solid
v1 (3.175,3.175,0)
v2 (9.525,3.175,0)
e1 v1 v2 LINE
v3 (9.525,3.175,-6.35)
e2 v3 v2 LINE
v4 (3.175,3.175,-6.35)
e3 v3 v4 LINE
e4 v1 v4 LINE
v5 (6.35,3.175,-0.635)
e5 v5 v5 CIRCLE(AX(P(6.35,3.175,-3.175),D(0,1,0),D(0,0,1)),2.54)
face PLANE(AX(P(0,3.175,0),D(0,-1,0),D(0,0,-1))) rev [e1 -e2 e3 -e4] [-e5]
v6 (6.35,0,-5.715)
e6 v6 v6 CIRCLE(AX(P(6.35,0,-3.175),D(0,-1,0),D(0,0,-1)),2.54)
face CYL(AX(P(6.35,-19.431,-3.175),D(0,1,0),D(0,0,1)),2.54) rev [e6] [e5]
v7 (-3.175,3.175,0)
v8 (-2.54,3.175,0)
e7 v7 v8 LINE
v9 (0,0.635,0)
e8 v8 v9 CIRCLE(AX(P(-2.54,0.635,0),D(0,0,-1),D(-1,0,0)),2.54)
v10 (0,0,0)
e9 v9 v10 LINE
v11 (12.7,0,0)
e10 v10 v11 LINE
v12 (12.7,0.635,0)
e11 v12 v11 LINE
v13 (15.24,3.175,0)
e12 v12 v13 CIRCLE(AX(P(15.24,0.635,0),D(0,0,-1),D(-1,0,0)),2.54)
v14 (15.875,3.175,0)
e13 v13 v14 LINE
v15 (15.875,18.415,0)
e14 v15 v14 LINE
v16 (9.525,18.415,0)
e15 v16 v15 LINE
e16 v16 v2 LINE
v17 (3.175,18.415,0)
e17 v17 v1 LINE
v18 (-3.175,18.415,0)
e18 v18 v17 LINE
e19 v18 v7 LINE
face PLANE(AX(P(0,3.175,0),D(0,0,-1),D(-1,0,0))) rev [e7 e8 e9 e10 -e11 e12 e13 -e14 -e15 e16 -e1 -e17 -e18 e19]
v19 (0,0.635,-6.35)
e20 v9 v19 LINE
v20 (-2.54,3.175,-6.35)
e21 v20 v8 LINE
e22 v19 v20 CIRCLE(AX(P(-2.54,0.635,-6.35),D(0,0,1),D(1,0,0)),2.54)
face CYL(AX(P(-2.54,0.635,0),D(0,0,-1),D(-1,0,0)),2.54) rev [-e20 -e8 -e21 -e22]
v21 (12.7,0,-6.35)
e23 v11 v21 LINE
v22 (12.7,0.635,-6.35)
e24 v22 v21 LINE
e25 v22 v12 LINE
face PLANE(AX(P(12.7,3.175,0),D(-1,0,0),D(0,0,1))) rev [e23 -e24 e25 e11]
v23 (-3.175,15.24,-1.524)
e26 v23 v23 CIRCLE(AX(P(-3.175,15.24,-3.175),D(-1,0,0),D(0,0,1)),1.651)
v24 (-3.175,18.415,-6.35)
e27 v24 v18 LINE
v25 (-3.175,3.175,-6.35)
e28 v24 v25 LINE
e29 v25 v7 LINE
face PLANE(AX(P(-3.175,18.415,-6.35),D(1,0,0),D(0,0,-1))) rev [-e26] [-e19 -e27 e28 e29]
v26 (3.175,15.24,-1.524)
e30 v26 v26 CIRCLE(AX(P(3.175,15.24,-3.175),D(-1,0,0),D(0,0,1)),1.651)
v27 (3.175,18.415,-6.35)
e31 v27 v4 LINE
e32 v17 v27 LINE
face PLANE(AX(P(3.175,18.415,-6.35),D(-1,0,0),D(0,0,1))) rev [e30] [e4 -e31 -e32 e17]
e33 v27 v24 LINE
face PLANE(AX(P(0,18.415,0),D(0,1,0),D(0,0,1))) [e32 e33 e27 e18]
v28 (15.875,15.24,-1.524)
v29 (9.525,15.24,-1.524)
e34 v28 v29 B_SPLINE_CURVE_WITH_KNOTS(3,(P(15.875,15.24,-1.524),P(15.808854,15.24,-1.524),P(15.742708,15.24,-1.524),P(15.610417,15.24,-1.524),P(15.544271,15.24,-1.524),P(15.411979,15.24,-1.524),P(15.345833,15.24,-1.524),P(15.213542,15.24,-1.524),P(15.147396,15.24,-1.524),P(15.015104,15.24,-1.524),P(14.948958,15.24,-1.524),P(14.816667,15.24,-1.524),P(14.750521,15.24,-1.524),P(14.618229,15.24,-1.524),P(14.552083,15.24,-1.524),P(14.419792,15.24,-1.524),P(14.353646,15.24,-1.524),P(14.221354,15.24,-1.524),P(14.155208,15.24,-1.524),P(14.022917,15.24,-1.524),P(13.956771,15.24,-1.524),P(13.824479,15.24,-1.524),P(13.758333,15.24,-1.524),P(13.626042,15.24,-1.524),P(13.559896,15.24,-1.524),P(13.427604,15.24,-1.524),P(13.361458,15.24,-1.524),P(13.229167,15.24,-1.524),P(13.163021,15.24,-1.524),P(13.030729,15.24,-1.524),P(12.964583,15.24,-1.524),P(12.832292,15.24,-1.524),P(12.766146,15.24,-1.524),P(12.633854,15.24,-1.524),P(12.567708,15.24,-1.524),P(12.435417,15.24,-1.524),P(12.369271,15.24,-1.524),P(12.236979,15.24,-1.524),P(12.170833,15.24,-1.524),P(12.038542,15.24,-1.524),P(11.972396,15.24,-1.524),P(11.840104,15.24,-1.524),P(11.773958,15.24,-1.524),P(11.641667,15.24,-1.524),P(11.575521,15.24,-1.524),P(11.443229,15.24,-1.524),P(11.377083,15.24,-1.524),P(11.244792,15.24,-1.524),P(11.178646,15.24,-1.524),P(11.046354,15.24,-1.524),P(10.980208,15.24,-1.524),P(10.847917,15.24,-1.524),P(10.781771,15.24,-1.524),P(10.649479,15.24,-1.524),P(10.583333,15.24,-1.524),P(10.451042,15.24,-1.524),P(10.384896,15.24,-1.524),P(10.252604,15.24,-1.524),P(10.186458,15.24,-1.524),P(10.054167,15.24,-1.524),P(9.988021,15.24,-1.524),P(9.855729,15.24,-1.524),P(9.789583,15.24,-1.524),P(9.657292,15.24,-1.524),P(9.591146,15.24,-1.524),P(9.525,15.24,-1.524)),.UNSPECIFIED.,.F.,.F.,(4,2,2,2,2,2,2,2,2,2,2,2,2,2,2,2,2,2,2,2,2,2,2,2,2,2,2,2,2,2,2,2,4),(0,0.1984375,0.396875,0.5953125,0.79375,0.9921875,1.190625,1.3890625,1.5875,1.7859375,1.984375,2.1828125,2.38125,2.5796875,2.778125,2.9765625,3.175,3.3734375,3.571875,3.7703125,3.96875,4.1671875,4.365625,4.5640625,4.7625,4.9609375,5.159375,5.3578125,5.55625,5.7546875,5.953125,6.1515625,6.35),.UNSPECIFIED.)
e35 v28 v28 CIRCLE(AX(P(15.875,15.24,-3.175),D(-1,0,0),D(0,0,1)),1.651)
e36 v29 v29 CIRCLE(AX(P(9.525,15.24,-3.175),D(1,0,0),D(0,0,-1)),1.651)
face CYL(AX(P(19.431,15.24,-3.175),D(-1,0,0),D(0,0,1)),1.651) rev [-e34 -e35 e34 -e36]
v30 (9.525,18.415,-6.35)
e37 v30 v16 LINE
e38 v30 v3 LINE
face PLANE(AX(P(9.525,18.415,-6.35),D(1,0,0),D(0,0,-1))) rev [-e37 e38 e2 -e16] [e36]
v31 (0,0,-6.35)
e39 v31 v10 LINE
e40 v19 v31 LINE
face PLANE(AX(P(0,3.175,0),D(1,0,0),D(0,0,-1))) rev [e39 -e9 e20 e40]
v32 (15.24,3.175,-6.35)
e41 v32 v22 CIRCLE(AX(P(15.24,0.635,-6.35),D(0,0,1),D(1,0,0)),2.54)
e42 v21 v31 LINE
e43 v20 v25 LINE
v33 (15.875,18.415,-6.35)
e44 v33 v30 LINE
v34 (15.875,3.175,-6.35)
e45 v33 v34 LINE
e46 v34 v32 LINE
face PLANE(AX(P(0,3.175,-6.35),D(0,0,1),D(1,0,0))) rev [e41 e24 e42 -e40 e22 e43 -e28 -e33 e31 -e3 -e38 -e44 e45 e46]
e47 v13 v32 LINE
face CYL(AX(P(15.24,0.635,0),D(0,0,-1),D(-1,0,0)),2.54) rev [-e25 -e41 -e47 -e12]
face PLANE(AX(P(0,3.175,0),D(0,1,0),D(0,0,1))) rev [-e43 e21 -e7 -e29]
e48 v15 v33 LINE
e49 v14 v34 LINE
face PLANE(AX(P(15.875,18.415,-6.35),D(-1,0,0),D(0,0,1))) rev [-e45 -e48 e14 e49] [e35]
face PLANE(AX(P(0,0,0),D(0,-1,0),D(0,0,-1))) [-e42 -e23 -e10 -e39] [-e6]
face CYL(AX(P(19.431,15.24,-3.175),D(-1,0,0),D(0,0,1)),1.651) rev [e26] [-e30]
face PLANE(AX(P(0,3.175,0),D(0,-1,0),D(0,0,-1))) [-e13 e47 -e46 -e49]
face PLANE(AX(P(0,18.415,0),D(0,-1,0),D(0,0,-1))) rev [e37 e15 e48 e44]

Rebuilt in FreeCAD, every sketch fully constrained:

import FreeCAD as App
import Part
import Sketcher

V = App.Vector
Q = App.Units.Quantity


def edges_at(feature, points):
    """Names of the edges that pass closest to the given points."""
    edges = feature.Shape.Edges
    near = lambda p: min(range(len(edges)), key=lambda i: edges[i].distToShape(Part.Vertex(*p))[0])
    return sorted({f"Edge{near(p) + 1}" for p in points})


def add_polygon(sketch, points):
    """Adds a closed chain of lines whose ends are joined by coincident constraints."""
    first, n = sketch.GeometryCount, len(points)
    for a, b in zip(points, points[1:] + points[:1]):
        sketch.addGeometry(Part.LineSegment(App.Vector(*a, 0), App.Vector(*b, 0)), False)
    for i in range(n):
        sketch.addConstraint(Sketcher.Constraint("Coincident", first + i, 2, first + (i + 1) % n, 1))

doc = App.newDocument("Part")
params = doc.addObject("Spreadsheet::Sheet", "Params")
for row, (alias, value) in enumerate([
    ("sketch1_width", "0.5 in"),
    ("sketch1_height", "0.25 in"),
    ("pad1_length", "0.125 in"),
    ("sketch2_width", "0.25 in"),
    ("pad2_length", "0.6 in"),
    ("fillet_radius", "0.1 in"),
    ("sketch3_diameter", "0.13 in"),
    ("pocket1_length", "0.89 in"),
    ("sketch4_diameter", "0.2 in"),
    ("pocket2_length", "0.89 in"),
], start=1):
    params.set(f"A{row}", alias)
    params.set(f"B{row}", "=" + value)
    params.setAlias(f"B{row}", alias)

body = doc.addObject("PartDesign::Body", "Body")

sketch1 = body.newObject("Sketcher::SketchObject", "Sketch")
sketch1.AttachmentSupport = (doc.getObject("XZ_Plane"), [""])
sketch1.MapMode = "FlatFace"
add_polygon(sketch1, [(0, -6), (0, 0), (13, 0), (13, -6)])
sketch1.addConstraint([
    Sketcher.Constraint("Vertical", 0),
    Sketcher.Constraint("Horizontal", 1),
    Sketcher.Constraint("Vertical", 2),
    Sketcher.Constraint("Horizontal", 3),
    Sketcher.Constraint("Coincident", 0, 2, -1, 1),
    Sketcher.Constraint("DistanceX", 1, 1, 1, 2, Q("0.5 in")),
    Sketcher.Constraint("DistanceY", 0, 1, 0, 2, Q("0.25 in")),
])
sketch1.setExpression("Constraints[9]", "Params.sketch1_width")
sketch1.setExpression("Constraints[10]", "Params.sketch1_height")
pad1 = body.newObject("PartDesign::Pad", "Pad")
pad1.Profile = sketch1
pad1.setExpression("Length", "Params.pad1_length")
pad1.Reversed = True

sketch2 = body.newObject("Sketcher::SketchObject", "Sketch001")
sketch2.AttachmentSupport = (doc.getObject("XZ_Plane"), [""])
sketch2.MapMode = "FlatFace"
sketch2.AttachmentOffset = App.Placement(V(0, 0, -0.125 * 25.4), App.Rotation())
add_polygon(sketch2, [(-3, -6), (-3, 0), (3, 0), (3, -6)])
add_polygon(sketch2, [(10, -6), (10, 0), (16, 0), (16, -6)])
sketch2.addConstraint([
    Sketcher.Constraint("Vertical", 0),
    Sketcher.Constraint("Horizontal", 1),
    Sketcher.Constraint("Vertical", 2),
    Sketcher.Constraint("Horizontal", 3),
    Sketcher.Constraint("Vertical", 4),
    Sketcher.Constraint("Horizontal", 5),
    Sketcher.Constraint("Vertical", 6),
    Sketcher.Constraint("Horizontal", 7),
    Sketcher.Constraint("Symmetric", 0, 2, 1, 2, -1, 1),
    Sketcher.Constraint("PointOnObject", 4, 2, -1),
    Sketcher.Constraint("Horizontal", 3, 2, 6, 2),
    Sketcher.Constraint("Equal", 3, 5),
    Sketcher.Constraint("Equal", 7, 0),
    Sketcher.Constraint("DistanceX", 1, 1, 1, 2, Q("0.25 in")),
    Sketcher.Constraint("DistanceX", 0, 2, 4, 2, Q("0.5 in")),
])
sketch2.setExpression("Constraints[21]", "Params.sketch2_width")
pad2 = body.newObject("PartDesign::Pad", "Pad001")
pad2.Profile = sketch2
pad2.setExpression("Length", "Params.pad2_length")
pad2.Reversed = True
doc.recompute()

fillet = body.newObject("PartDesign::Fillet", "Fillet")
fillet.Base = (pad2, edges_at(pad2, [(12.7, 3.175, -3.175), (0, 3.175, -3.175)]))
fillet.setExpression("Radius", "Params.fillet_radius")

sketch3 = body.newObject("Sketcher::SketchObject", "Sketch002")
sketch3.AttachmentSupport = (doc.getObject("YZ_Plane"), [""])
sketch3.MapMode = "FlatFace"
sketch3.AttachmentOffset = App.Placement(V(0, 0, -0.125 * 25.4), App.Rotation())
sketch3.addGeometry(Part.Circle(V(15.2, -3.2, 0), V(0, 0, 1), 1.7), False)
sketch3.addConstraint([
    Sketcher.Constraint("Diameter", 0, Q("0.13 in")),
    Sketcher.Constraint("DistanceX", -1, 1, 0, 3, Q("0.6 in")),
    Sketcher.Constraint("DistanceY", 0, 3, -1, 1, Q("0.125 in")),
])
sketch3.setExpression("Constraints[0]", "Params.sketch3_diameter")
pocket1 = body.newObject("PartDesign::Pocket", "Pocket")
pocket1.Profile = sketch3
pocket1.setExpression("Length", "Params.pocket1_length")
pocket1.Reversed = True

sketch4 = body.newObject("Sketcher::SketchObject", "Sketch003")
sketch4.AttachmentSupport = (doc.getObject("XZ_Plane"), [""])
sketch4.MapMode = "FlatFace"
sketch4.AttachmentOffset = App.Placement(V(0, 0, -0.125 * 25.4), App.Rotation())
sketch4.addGeometry(Part.Circle(V(6.3, -3.2, 0), V(0, 0, 1), 2.5), False)
sketch4.addConstraint([
    Sketcher.Constraint("Diameter", 0, Q("0.2 in")),
    Sketcher.Constraint("DistanceX", -1, 1, 0, 3, Q("0.25 in")),
    Sketcher.Constraint("DistanceY", 0, 3, -1, 1, Q("0.125 in")),
])
sketch4.setExpression("Constraints[0]", "Params.sketch4_diameter")
pocket2 = body.newObject("PartDesign::Pocket", "Pocket001")
pocket2.Profile = sketch4
pocket2.setExpression("Length", "Params.pocket2_length")
pocket2.Reversed = True

doc.recompute()
